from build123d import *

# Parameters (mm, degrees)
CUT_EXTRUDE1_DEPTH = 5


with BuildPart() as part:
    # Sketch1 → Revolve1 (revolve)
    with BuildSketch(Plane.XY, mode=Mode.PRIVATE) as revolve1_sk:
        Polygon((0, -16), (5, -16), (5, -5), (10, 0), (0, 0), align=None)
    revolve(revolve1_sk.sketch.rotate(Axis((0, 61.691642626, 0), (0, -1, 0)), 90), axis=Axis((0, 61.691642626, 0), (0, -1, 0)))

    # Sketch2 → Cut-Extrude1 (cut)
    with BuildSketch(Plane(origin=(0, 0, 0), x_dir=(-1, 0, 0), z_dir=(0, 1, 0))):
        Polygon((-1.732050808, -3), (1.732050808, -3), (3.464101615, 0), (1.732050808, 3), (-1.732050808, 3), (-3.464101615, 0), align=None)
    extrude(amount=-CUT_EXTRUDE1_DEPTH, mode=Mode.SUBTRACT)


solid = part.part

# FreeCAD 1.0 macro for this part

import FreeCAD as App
import Part
import Sketcher
Q = App.Units.Quantity

doc = App.newDocument("Part")
body = doc.addObject("PartDesign::Body", "Body")

# Sketch on XY plane
sketch1 = body.newObject("Sketcher::SketchObject", "Sketch")
sketch1.AttachmentSupport = (doc.getObject("XY_Plane"), [""])
sketch1.MapMode = "FlatFace"
sketch1.addGeometry(Part.LineSegment(App.Vector(0, -16, 0), App.Vector(5, -16, 0)), False)
sketch1.addGeometry(Part.LineSegment(App.Vector(5, -16, 0), App.Vector(5, -5, 0)), False)
sketch1.addGeometry(Part.LineSegment(App.Vector(5, -5, 0), App.Vector(10, 0, 0)), False)
sketch1.addGeometry(Part.LineSegment(App.Vector(10, 0, 0), App.Vector(0, 0, 0)), False)
sketch1.addGeometry(Part.LineSegment(App.Vector(0, 0, 0), App.Vector(0, -16, 0)), False)
sketch1.addConstraint(Sketcher.Constraint("Coincident", 0, 2, 1, 1))
sketch1.addConstraint(Sketcher.Constraint("Coincident", 1, 2, 2, 1))
sketch1.addConstraint(Sketcher.Constraint("Coincident", 2, 2, 3, 1))
sketch1.addConstraint(Sketcher.Constraint("Coincident", 3, 2, 4, 1))
sketch1.addConstraint(Sketcher.Constraint("Coincident", 4, 2, 0, 1))
sketch1.addConstraint(Sketcher.Constraint("Horizontal", 0))
sketch1.addConstraint(Sketcher.Constraint("Vertical", 1))
sketch1.addConstraint(Sketcher.Constraint("Horizontal", 3))
sketch1.addConstraint(Sketcher.Constraint("Vertical", 4))
sketch1.addConstraint(Sketcher.Constraint("Coincident", 3, 2, -1, 1))
sketch1.addConstraint(Sketcher.Constraint("DistanceX", 0, 1, 0, 2, 5.0))
sketch1.addConstraint(Sketcher.Constraint("DistanceX", 3, 2, 3, 1, 10.0))
sketch1.addConstraint(Sketcher.Constraint("DistanceY", 1, 1, 1, 2, 11.0))
sketch1.addConstraint(Sketcher.Constraint("DistanceY", 4, 2, 4, 1, 16.0))
revolution = body.newObject("PartDesign::Revolution", "Revolution")
revolution.Profile = sketch1
revolution.ReferenceAxis = (sketch1, ["V_Axis"])
revolution.Angle = 360

# Sketch on XZ plane
sketch2 = body.newObject("Sketcher::SketchObject", "Sketch001")
sketch2.AttachmentSupport = (doc.getObject("XZ_Plane"), [""])
sketch2.MapMode = "FlatFace"
sketch2.addGeometry(Part.LineSegment(App.Vector(1.7, -3, 0), App.Vector(-1.7, -3, 0)), False)
sketch2.addGeometry(Part.LineSegment(App.Vector(-1.7, -3, 0), App.Vector(-3.5, 0, 0)), False)
sketch2.addGeometry(Part.LineSegment(App.Vector(-3.5, 0, 0), App.Vector(-1.7, 3, 0)), False)
sketch2.addGeometry(Part.LineSegment(App.Vector(-1.7, 3, 0), App.Vector(1.7, 3, 0)), False)
sketch2.addGeometry(Part.LineSegment(App.Vector(1.7, 3, 0), App.Vector(3.5, 0, 0)), False)
sketch2.addGeometry(Part.LineSegment(App.Vector(3.5, 0, 0), App.Vector(1.7, -3, 0)), False)
sketch2.addConstraint(Sketcher.Constraint("Coincident", 0, 2, 1, 1))
sketch2.addConstraint(Sketcher.Constraint("Coincident", 1, 2, 2, 1))
sketch2.addConstraint(Sketcher.Constraint("Coincident", 2, 2, 3, 1))
sketch2.addConstraint(Sketcher.Constraint("Coincident", 3, 2, 4, 1))
sketch2.addConstraint(Sketcher.Constraint("Coincident", 4, 2, 5, 1))
sketch2.addConstraint(Sketcher.Constraint("Coincident", 5, 2, 0, 1))
sketch2.addConstraint(Sketcher.Constraint("Horizontal", 0))
sketch2.addConstraint(Sketcher.Constraint("Horizontal", 3))
sketch2.addConstraint(Sketcher.Constraint("Symmetric", 0, 2, 3, 2, -1, 1))
sketch2.addConstraint(Sketcher.Constraint("Symmetric", 1, 2, 4, 2, -1, 1))
sketch2.addConstraint(Sketcher.Constraint("PointOnObject", 1, 2, -1))
sketch2.addConstraint(Sketcher.Constraint("Parallel", 2, 5))
sketch2.addConstraint(Sketcher.Constraint("Vertical", 0, 2, 2, 2))
sketch2.addConstraint(Sketcher.Constraint("Angle", 1, Q("120 deg")))
sketch2.addConstraint(Sketcher.Constraint("DistanceY", 0, 2, -1, 1, 3.0))
sketch2.addConstraint(Sketcher.Constraint("DistanceX", 0, 2, 0, 1, 3.464102))
pocket1 = body.newObject("PartDesign::Pocket", "Pocket")
pocket1.Profile = sketch2
pocket1.Length = 5
pocket1.Reversed = True

doc.recompute()
